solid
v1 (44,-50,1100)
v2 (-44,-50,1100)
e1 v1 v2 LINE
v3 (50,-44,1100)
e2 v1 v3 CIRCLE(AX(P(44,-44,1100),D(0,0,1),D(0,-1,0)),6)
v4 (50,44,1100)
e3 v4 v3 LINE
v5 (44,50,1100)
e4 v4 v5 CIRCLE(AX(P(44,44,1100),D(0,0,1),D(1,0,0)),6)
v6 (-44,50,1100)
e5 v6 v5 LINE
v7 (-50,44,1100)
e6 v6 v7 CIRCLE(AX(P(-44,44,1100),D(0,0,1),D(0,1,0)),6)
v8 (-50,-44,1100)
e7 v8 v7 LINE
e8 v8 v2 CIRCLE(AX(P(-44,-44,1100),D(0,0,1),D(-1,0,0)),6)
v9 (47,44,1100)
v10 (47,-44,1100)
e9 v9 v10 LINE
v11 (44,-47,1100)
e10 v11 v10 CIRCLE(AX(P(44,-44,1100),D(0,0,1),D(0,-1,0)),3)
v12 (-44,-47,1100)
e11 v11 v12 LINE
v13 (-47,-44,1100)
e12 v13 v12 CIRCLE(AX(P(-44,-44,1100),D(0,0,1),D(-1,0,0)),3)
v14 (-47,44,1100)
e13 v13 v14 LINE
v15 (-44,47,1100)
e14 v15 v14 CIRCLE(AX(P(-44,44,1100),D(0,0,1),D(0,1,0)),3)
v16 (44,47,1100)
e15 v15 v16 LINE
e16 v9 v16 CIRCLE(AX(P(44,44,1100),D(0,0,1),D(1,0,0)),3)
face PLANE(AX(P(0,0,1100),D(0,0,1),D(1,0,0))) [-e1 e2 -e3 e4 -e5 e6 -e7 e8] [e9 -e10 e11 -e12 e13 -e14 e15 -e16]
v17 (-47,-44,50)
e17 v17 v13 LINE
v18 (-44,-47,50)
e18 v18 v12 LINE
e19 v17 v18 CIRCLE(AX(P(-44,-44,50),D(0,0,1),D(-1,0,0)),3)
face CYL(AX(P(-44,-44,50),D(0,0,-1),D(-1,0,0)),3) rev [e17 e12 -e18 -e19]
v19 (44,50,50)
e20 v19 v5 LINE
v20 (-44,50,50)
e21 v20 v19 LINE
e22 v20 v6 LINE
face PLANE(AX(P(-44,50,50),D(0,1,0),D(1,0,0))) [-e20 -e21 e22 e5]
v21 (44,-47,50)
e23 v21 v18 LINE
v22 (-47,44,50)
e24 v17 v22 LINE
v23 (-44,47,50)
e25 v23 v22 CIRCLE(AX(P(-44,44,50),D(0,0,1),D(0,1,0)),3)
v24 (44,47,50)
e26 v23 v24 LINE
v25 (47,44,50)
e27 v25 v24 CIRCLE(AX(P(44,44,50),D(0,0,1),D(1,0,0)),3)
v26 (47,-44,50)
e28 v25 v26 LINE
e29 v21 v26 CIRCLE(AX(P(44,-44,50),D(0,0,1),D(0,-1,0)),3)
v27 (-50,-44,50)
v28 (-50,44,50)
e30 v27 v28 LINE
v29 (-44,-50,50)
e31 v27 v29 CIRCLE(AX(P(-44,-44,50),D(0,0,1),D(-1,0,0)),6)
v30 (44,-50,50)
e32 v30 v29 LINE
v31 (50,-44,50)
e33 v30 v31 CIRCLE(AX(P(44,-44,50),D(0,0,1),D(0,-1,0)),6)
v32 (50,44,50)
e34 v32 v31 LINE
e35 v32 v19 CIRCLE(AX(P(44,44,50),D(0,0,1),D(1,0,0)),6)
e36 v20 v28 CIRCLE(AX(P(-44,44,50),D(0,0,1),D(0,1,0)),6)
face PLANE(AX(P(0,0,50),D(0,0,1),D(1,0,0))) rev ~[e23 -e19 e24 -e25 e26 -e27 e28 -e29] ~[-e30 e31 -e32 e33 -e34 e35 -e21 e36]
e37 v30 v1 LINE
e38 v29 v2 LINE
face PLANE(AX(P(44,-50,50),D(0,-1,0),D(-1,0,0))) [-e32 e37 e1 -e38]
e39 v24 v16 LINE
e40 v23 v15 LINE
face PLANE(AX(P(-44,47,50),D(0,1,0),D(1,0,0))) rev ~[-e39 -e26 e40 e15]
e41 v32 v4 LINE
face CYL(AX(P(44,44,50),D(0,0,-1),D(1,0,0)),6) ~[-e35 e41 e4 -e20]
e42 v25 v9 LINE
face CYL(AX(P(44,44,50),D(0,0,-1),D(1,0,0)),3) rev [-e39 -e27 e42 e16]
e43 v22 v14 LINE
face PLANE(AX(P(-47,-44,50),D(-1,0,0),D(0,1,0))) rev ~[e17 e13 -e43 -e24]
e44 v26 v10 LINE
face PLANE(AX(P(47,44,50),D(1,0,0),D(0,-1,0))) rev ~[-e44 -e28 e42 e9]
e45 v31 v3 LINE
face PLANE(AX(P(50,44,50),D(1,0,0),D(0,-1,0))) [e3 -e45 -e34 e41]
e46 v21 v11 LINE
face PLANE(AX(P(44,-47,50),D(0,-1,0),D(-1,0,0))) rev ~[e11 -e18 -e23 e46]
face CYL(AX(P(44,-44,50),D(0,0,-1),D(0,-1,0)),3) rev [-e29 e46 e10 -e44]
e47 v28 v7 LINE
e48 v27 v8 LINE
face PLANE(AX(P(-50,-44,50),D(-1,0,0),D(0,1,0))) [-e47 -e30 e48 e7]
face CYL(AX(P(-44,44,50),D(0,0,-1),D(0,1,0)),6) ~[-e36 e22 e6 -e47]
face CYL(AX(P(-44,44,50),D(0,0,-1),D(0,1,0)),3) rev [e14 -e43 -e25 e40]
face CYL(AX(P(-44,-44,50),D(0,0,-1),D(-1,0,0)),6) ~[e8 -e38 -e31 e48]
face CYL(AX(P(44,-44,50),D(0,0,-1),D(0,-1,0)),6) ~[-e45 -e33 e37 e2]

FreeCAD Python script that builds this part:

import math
import FreeCAD as App
import Part
import Sketcher
Q = App.Units.Quantity

doc = App.newDocument("Part")
body = doc.addObject("PartDesign::Body", "Body")

# Sketch on XY plane
sketch1 = body.newObject("Sketcher::SketchObject", "Sketch")
sketch1.AttachmentSupport = (doc.getObject("XY_Plane"), [""])
sketch1.MapMode = "FlatFace"
sketch1.AttachmentOffset = App.Placement(App.Vector(0, 0, 50), App.Rotation())
sketch1.addGeometry([
    Part.LineSegment(App.Vector(-50, 44, 0), App.Vector(-50, -44, 0)),  # 0
    Part.ArcOfCircle(Part.Circle(App.Vector(-44, -44, 0), App.Vector(0, 0, 1), 6), math.radians(180), math.radians(270)),  # 1
    Part.LineSegment(App.Vector(-44, -50, 0), App.Vector(44, -50, 0)),  # 2
    Part.ArcOfCircle(Part.Circle(App.Vector(44, -44, 0), App.Vector(0, 0, 1), 6), math.radians(-90), math.radians(0)),  # 3
    Part.LineSegment(App.Vector(50, -44, 0), App.Vector(50, 44, 0)),  # 4
    Part.ArcOfCircle(Part.Circle(App.Vector(44, 44, 0), App.Vector(0, 0, 1), 6), math.radians(0), math.radians(90)),  # 5
    Part.LineSegment(App.Vector(44, 50, 0), App.Vector(-44, 50, 0)),  # 6
    Part.ArcOfCircle(Part.Circle(App.Vector(-44, 44, 0), App.Vector(0, 0, 1), 6), math.radians(90), math.radians(180)),  # 7
    Part.ArcOfCircle(Part.Circle(App.Vector(-44, 44, 0), App.Vector(0, 0, 1), 3), math.radians(90), math.radians(180)),  # 8
    Part.LineSegment(App.Vector(-44, 47, 0), App.Vector(44, 47, 0)),  # 9
    Part.ArcOfCircle(Part.Circle(App.Vector(44, 44, 0), App.Vector(0, 0, 1), 3), math.radians(0), math.radians(90)),  # 10
    Part.LineSegment(App.Vector(47, 44, 0), App.Vector(47, -44, 0)),  # 11
    Part.ArcOfCircle(Part.Circle(App.Vector(44, -44, 0), App.Vector(0, 0, 1), 3), math.radians(-90), math.radians(0)),  # 12
    Part.LineSegment(App.Vector(44, -47, 0), App.Vector(-44, -47, 0)),  # 13
    Part.ArcOfCircle(Part.Circle(App.Vector(-44, -44, 0), App.Vector(0, 0, 1), 3), math.radians(180), math.radians(270)),  # 14
    Part.LineSegment(App.Vector(-47, -44, 0), App.Vector(-47, 44, 0)),  # 15
], False)
sketch1.addConstraint([
    Sketcher.Constraint("Tangent", 0, 2, 1, 1),
    Sketcher.Constraint("Tangent", 1, 2, 2, 1),
    Sketcher.Constraint("Tangent", 2, 2, 3, 1),
    Sketcher.Constraint("Tangent", 3, 2, 4, 1),
    Sketcher.Constraint("Tangent", 4, 2, 5, 1),
    Sketcher.Constraint("Tangent", 5, 2, 6, 1),
    Sketcher.Constraint("Tangent", 6, 2, 7, 1),
    Sketcher.Constraint("Tangent", 7, 2, 0, 1),
    Sketcher.Constraint("Tangent", 8, 1, 9, 1),
    Sketcher.Constraint("Tangent", 9, 2, 10, 2),
    Sketcher.Constraint("Tangent", 10, 1, 11, 1),
    Sketcher.Constraint("Tangent", 11, 2, 12, 2),
    Sketcher.Constraint("Tangent", 12, 1, 13, 1),
    Sketcher.Constraint("Tangent", 13, 2, 14, 2),
    Sketcher.Constraint("Tangent", 14, 1, 15, 1),
    Sketcher.Constraint("Tangent", 15, 2, 8, 2),
    Sketcher.Constraint("Vertical", 0),
    Sketcher.Constraint("Horizontal", 2),
    Sketcher.Constraint("Vertical", 4),
    Sketcher.Constraint("Horizontal", 6),
    Sketcher.Constraint("Horizontal", 9),
    Sketcher.Constraint("Vertical", 11),
    Sketcher.Constraint("Horizontal", 13),
    Sketcher.Constraint("Vertical", 15),
    Sketcher.Constraint("Coincident", 8, 3, 7, 3),
    Sketcher.Constraint("Coincident", 10, 3, 5, 3),
    Sketcher.Constraint("Coincident", 12, 3, 3, 3),
    Sketcher.Constraint("Equal", 1, 3),
    Sketcher.Constraint("Equal", 3, 5),
    Sketcher.Constraint("Equal", 5, 7),
    Sketcher.Constraint("Equal", 12, 14),
    Sketcher.Constraint("Symmetric", 1, 3, 5, 3, -1, 1),
    Sketcher.Constraint("Equal", 13, 0),
    Sketcher.Constraint("Radius", 1, Q("6 mm")),
    Sketcher.Constraint("Radius", 8, Q("3 mm")),
    Sketcher.Constraint("DistanceX", 0, 2, -1, 1, Q("50 mm")),
])
pad1 = body.newObject("PartDesign::Pad", "Pad")
pad1.Profile = sketch1
pad1.Length = 1050

doc.recompute()
